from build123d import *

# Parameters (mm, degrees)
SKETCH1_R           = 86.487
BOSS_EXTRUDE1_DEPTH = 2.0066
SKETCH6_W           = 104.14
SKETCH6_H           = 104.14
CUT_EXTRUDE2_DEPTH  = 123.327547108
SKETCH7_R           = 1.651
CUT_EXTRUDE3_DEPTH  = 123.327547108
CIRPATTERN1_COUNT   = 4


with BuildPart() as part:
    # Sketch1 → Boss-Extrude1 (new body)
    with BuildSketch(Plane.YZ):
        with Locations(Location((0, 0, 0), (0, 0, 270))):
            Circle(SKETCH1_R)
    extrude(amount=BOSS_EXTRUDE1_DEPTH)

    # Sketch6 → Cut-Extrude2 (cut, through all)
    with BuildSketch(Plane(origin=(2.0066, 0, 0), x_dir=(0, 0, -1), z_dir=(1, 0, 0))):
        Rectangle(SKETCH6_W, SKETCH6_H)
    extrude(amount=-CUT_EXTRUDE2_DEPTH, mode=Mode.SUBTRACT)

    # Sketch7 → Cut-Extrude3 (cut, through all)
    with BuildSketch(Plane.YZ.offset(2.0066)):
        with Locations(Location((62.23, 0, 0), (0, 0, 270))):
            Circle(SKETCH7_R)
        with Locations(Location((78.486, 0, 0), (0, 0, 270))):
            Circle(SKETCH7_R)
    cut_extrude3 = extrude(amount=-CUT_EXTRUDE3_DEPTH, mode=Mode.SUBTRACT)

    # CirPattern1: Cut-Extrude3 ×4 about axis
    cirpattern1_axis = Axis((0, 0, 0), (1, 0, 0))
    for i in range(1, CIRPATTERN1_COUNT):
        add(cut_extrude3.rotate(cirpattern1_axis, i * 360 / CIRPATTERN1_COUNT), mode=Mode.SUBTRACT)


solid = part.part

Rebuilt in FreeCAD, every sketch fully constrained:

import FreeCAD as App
import Part
import Sketcher

V = App.Vector
Q = App.Units.Quantity

doc = App.newDocument("Part")
body = doc.addObject("PartDesign::Body", "Body")

sketch1 = doc.addObject("Sketcher::SketchObject", "Sketch")
body.addObject(sketch1)
sketch1.AttachmentSupport = (doc.YZ_Plane, [""])
sketch1.MapMode = "FlatFace"
sketch1.addGeometry(Part.Circle(V(0, 0, 0), V(0, 0, 1), 86), False)
sketch1.addConstraint([
    Sketcher.Constraint("Coincident", 0, 3, -1, 1),
    Sketcher.Constraint("Diameter", 0, Q("6.81 in")),
])
pad1 = doc.addObject("PartDesign::Pad", "Pad")
body.addObject(pad1)
pad1.Profile = sketch1
pad1.Length = Q("0.079 in")

sketch2 = doc.addObject("Sketcher::SketchObject", "Sketch001")
body.addObject(sketch2)
sketch2.AttachmentSupport = (doc.YZ_Plane, [""])
sketch2.MapMode = "FlatFace"
sketch2.AttachmentOffset = App.Placement(V(0, 0, 0.079 * 25.4), App.Rotation())
sketch2.addGeometry([
    Part.LineSegment(V(52, 52, 0), V(-52, 52, 0)),
    Part.LineSegment(V(-52, 52, 0), V(-52, -52, 0)),
    Part.LineSegment(V(-52, -52, 0), V(52, -52, 0)),
    Part.LineSegment(V(52, -52, 0), V(52, 52, 0)),
], False)
sketch2.addConstraint([
    Sketcher.Constraint("Coincident", 0, 2, 1, 1),
    Sketcher.Constraint("Coincident", 1, 2, 2, 1),
    Sketcher.Constraint("Coincident", 2, 2, 3, 1),
    Sketcher.Constraint("Coincident", 3, 2, 0, 1),
    Sketcher.Constraint("Horizontal", 0),
    Sketcher.Constraint("Vertical", 1),
    Sketcher.Constraint("Horizontal", 2),
    Sketcher.Constraint("Vertical", 3),
    Sketcher.Constraint("Symmetric", 0, 2, 2, 2, -1, 1),
    Sketcher.Constraint("Equal", 2, 1),
    Sketcher.Constraint("DistanceX", 0, 2, 0, 1, Q("4.1 in")),
])
pocket1 = doc.addObject("PartDesign::Pocket", "Pocket")
body.addObject(pocket1)
pocket1.Profile = sketch2
pocket1.Type = "ThroughAll"

sketch3 = doc.addObject("Sketcher::SketchObject", "Sketch002")
body.addObject(sketch3)
sketch3.AttachmentSupport = (doc.YZ_Plane, [""])
sketch3.MapMode = "FlatFace"
sketch3.AttachmentOffset = App.Placement(V(0, 0, 0.079 * 25.4), App.Rotation())
sketch3.addGeometry([
    Part.Circle(V(62.2, 0, 0), V(0, 0, 1), 1.7),
    Part.Circle(V(78.5, 0, 0), V(0, 0, 1), 1.7),
], False)
sketch3.addConstraint([
    Sketcher.Constraint("Equal", 0, 1),
    Sketcher.Constraint("PointOnObject", 0, 3, -1),
    Sketcher.Constraint("PointOnObject", 1, 3, -1),
    Sketcher.Constraint("Diameter", 0, Q("0.13 in")),
    Sketcher.Constraint("DistanceX", -1, 1, 0, 3, Q("2.45 in")),
    Sketcher.Constraint("DistanceX", -1, 1, 1, 3, Q("3.09 in")),
])
pocket2 = doc.addObject("PartDesign::Pocket", "Pocket001")
body.addObject(pocket2)
pocket2.Profile = sketch3
pocket2.Type = "ThroughAll"
doc.recompute()

polarpattern = doc.addObject("PartDesign::PolarPattern", "PolarPattern")
body.addObject(polarpattern)
polarpattern.Originals = [pocket2]
polarpattern.Axis = (doc.X_Axis, [""])
polarpattern.Angle = 360
polarpattern.Occurrences = 4
body.Tip = polarpattern

doc.recompute()
